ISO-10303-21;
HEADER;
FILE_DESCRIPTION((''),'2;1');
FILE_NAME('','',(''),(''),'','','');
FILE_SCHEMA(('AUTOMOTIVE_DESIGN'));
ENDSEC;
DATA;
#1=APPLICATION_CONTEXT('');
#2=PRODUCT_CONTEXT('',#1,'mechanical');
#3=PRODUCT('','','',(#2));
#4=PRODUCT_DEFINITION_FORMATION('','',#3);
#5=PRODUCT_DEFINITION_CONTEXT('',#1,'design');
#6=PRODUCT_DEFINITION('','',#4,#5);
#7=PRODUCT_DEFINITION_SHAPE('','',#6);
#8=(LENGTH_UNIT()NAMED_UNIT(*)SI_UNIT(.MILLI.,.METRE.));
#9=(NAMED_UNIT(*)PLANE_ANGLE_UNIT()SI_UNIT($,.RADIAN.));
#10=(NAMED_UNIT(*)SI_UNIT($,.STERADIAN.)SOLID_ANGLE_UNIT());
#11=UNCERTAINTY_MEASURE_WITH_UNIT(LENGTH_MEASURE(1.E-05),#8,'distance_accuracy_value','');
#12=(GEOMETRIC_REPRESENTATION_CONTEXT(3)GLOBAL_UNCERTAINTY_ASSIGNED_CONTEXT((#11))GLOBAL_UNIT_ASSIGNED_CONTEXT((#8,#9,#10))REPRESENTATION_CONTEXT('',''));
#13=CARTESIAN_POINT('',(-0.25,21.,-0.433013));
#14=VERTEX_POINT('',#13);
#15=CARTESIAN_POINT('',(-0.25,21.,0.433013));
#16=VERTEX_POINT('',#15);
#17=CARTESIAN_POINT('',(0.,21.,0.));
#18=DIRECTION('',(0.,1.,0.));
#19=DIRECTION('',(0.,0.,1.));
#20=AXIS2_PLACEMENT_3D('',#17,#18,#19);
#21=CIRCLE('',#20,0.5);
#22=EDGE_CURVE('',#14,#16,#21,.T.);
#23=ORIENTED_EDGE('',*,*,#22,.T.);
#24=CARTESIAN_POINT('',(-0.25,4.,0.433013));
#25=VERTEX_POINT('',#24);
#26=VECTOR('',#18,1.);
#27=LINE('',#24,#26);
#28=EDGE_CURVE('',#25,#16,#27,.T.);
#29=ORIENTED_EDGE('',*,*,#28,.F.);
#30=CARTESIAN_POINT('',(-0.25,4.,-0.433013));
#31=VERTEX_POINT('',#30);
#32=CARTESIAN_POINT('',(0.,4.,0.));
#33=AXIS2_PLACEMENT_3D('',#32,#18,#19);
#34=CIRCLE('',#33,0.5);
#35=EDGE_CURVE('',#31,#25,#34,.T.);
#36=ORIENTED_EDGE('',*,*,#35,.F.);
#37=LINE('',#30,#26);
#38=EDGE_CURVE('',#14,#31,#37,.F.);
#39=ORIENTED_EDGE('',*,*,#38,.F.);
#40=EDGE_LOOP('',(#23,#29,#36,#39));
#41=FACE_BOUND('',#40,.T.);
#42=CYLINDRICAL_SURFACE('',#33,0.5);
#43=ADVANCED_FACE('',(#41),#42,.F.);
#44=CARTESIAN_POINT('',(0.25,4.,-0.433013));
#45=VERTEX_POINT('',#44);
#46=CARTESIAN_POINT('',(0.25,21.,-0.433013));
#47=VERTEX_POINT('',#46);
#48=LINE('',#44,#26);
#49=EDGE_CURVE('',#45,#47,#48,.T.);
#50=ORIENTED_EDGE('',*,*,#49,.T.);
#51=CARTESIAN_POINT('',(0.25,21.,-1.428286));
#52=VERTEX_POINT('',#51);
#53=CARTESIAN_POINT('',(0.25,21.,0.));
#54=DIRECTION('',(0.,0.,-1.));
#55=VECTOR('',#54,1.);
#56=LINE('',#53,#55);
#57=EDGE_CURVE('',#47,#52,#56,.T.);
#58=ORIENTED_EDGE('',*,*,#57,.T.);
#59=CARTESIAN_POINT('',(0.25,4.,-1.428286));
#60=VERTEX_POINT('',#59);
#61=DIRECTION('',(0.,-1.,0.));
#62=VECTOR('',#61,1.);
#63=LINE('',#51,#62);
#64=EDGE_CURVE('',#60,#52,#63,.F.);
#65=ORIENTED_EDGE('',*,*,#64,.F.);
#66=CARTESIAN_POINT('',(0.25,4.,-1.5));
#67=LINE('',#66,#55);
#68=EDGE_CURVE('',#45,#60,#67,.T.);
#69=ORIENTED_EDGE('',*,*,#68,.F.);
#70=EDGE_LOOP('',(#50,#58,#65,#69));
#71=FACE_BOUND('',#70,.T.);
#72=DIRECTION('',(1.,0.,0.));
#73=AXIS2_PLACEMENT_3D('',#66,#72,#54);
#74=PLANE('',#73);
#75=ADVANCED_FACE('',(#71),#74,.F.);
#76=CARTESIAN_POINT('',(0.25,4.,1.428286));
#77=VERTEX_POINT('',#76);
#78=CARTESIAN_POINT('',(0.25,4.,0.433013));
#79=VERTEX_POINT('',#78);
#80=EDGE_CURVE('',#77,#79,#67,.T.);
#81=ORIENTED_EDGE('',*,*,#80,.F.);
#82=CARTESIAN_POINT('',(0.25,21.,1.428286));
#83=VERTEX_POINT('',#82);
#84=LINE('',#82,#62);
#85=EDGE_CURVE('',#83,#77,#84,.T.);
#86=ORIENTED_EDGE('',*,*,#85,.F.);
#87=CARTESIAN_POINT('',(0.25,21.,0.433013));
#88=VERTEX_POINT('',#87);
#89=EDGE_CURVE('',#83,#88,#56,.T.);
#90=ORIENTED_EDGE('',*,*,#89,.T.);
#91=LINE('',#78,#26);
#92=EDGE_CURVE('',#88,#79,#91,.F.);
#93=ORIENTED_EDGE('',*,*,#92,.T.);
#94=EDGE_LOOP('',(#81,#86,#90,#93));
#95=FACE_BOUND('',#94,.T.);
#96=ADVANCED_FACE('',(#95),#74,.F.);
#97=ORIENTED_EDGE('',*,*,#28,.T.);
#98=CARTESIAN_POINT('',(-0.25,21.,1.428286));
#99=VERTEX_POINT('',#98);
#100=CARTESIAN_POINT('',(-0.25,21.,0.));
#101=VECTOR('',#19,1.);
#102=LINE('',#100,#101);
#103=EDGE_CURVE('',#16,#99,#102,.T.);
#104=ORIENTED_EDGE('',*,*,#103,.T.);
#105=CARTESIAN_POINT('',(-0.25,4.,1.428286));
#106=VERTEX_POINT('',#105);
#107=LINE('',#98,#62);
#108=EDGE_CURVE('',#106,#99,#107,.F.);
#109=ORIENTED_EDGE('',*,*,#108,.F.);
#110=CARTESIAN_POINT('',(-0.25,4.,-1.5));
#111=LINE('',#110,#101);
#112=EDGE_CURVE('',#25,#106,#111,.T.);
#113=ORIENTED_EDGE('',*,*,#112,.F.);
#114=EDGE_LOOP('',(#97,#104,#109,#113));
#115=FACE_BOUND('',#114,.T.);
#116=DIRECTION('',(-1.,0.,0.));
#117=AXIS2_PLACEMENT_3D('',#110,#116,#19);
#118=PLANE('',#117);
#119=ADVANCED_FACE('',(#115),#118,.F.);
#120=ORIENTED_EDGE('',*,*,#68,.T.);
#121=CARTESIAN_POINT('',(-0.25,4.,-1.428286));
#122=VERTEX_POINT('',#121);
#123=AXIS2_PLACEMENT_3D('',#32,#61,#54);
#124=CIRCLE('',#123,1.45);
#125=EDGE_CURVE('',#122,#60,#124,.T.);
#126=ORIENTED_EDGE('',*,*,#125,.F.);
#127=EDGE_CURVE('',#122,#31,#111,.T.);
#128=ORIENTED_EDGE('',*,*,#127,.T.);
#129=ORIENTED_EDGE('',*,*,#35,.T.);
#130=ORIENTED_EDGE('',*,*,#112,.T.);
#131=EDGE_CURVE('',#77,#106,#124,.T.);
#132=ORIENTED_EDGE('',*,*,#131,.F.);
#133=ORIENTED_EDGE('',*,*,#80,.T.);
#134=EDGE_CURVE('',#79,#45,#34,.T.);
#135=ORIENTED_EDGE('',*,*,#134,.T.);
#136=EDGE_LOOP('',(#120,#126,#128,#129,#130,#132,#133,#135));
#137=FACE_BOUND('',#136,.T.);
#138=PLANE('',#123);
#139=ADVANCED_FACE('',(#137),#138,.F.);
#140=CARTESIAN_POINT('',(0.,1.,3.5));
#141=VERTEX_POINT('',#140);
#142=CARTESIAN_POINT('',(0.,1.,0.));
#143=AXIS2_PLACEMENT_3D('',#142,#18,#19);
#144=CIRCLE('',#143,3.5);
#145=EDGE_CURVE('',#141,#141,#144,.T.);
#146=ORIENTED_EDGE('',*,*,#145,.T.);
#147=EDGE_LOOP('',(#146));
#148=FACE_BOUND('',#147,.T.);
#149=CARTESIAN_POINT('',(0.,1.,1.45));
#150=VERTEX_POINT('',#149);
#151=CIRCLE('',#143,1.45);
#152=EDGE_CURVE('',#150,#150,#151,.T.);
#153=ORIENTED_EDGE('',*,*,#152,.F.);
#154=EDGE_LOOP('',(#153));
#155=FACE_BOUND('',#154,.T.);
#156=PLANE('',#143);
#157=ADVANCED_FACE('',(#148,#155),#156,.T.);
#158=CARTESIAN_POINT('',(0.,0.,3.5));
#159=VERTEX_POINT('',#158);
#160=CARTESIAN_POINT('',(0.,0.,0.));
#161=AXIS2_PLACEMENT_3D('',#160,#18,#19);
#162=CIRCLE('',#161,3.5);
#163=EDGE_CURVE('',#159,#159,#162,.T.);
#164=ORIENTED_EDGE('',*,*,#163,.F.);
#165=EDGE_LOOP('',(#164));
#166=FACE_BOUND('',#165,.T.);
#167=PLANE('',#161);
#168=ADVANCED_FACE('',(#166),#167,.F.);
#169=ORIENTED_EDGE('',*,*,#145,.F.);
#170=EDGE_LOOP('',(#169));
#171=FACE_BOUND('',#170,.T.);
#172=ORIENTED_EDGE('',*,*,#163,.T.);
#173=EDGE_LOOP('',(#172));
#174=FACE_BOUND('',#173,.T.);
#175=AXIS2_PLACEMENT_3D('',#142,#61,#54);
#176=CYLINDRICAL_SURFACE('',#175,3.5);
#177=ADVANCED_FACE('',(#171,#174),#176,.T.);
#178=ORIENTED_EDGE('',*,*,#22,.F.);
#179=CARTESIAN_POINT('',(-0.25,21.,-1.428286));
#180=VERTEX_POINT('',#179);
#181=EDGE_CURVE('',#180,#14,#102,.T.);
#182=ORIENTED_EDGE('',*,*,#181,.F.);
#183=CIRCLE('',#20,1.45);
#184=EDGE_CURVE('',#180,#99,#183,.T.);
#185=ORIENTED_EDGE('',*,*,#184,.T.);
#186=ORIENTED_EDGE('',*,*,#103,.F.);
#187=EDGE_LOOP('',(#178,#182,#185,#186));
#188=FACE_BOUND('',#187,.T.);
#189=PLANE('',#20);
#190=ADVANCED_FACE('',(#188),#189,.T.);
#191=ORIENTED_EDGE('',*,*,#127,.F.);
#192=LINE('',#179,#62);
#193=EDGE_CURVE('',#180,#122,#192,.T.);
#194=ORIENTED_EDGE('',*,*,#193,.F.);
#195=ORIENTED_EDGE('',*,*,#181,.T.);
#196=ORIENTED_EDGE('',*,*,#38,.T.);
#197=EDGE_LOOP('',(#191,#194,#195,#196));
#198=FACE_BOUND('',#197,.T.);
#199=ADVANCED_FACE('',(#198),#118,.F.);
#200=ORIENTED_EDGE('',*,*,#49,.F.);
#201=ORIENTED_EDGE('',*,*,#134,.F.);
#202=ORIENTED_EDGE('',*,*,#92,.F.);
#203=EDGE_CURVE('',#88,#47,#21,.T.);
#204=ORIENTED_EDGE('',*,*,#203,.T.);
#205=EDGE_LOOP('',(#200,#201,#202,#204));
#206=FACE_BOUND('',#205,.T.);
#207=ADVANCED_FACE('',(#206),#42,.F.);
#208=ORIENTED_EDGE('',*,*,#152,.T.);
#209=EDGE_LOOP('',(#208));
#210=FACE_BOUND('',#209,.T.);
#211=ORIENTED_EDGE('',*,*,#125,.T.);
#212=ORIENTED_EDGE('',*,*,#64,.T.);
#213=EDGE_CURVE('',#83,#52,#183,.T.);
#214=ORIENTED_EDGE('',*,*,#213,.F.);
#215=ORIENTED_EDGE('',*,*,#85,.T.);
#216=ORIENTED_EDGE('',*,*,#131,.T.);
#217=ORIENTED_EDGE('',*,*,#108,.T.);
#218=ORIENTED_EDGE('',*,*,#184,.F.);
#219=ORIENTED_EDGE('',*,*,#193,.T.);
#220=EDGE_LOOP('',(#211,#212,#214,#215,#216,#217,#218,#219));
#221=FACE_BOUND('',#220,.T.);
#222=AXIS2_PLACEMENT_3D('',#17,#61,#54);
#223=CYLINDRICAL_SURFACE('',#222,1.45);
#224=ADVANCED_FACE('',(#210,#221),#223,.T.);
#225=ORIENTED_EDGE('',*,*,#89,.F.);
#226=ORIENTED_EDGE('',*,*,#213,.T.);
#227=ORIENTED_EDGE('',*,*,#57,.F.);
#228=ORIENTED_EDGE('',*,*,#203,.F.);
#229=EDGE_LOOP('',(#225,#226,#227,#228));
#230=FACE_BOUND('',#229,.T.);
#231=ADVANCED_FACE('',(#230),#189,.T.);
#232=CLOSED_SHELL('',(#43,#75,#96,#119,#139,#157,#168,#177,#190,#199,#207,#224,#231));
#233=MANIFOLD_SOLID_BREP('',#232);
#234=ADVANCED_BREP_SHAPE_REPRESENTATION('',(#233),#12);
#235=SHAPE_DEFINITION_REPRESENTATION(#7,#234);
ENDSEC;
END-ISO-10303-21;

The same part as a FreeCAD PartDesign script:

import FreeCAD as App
import Part
import Sketcher


def add_polygon(sketch, points):
    """Adds a closed chain of lines whose ends are joined by coincident constraints."""
    first, n = sketch.GeometryCount, len(points)
    for a, b in zip(points, points[1:] + points[:1]):
        sketch.addGeometry(Part.LineSegment(App.Vector(*a, 0), App.Vector(*b, 0)), False)
    for i in range(n):
        sketch.addConstraint(Sketcher.Constraint("Coincident", first + i, 2, first + (i + 1) % n, 1))

doc = App.newDocument("Part")
body = doc.addObject("PartDesign::Body", "Body")

# Sketch on XZ plane
sketch1 = doc.addObject("Sketcher::SketchObject", "Sketch")
body.addObject(sketch1)
sketch1.AttachmentSupport = (doc.XZ_Plane, [""])
sketch1.MapMode = "FlatFace"
sketch1.addGeometry(Part.Circle(App.Vector(0, 0, 0), App.Vector(0, 0, 1), 3.5), False)
sketch1.addConstraint([
    Sketcher.Constraint("Coincident", 0, 3, -1, 1),
    Sketcher.Constraint("Diameter", 0, 7.0),
])
pad1 = doc.addObject("PartDesign::Pad", "Pad")
body.addObject(pad1)
pad1.Profile = sketch1
pad1.Length = 1
pad1.Reversed = True

# Sketch on XZ plane
sketch2 = doc.addObject("Sketcher::SketchObject", "Sketch001")
body.addObject(sketch2)
sketch2.AttachmentSupport = (doc.XZ_Plane, [""])
sketch2.MapMode = "FlatFace"
sketch2.AttachmentOffset = App.Placement(App.Vector(0, 0, -1), App.Rotation())
sketch2.addGeometry(Part.Circle(App.Vector(0, 0, 0), App.Vector(0, 0, 1), 1.4), False)
sketch2.addConstraint([
    Sketcher.Constraint("Coincident", 0, 3, -1, 1),
    Sketcher.Constraint("Diameter", 0, 2.9),
])
pad2 = doc.addObject("PartDesign::Pad", "Pad001")
body.addObject(pad2)
pad2.Profile = sketch2
pad2.Length = 20
pad2.Reversed = True

# Sketch on XZ plane
sketch3 = doc.addObject("Sketcher::SketchObject", "Sketch002")
body.addObject(sketch3)
sketch3.AttachmentSupport = (doc.XZ_Plane, [""])
sketch3.MapMode = "FlatFace"
sketch3.AttachmentOffset = App.Placement(App.Vector(0, 0, -21), App.Rotation())
add_polygon(sketch3, [(-0.2, -1.5), (-0.2, 1.5), (0.2, 1.5), (0.2, -1.5)])  # lines 0-3
sketch3.addConstraint([
    Sketcher.Constraint("Vertical", 0),
    Sketcher.Constraint("Horizontal", 1),
    Sketcher.Constraint("Vertical", 2),
    Sketcher.Constraint("Horizontal", 3),
    Sketcher.Constraint("Symmetric", 0, 2, 2, 2, -1, 1),
    Sketcher.Constraint("DistanceY", 0, 1, 0, 2, 3.0),
    Sketcher.Constraint("DistanceX", 1, 1, 1, 2, 0.5),
])
pocket1 = doc.addObject("PartDesign::Pocket", "Pocket")
body.addObject(pocket1)
pocket1.Profile = sketch3
pocket1.Length = 17
pocket1.Reversed = True

# Sketch on XZ plane
sketch4 = doc.addObject("Sketcher::SketchObject", "Sketch003")
body.addObject(sketch4)
sketch4.AttachmentSupport = (doc.XZ_Plane, [""])
sketch4.MapMode = "FlatFace"
sketch4.AttachmentOffset = App.Placement(App.Vector(0, 0, -21), App.Rotation())
sketch4.addGeometry(Part.Circle(App.Vector(0, 0, 0), App.Vector(0, 0, 1), 0.5), False)
sketch4.addConstraint([
    Sketcher.Constraint("Coincident", 0, 3, -1, 1),
    Sketcher.Constraint("Diameter", 0, 1.0),
])
pocket2 = doc.addObject("PartDesign::Pocket", "Pocket001")
body.addObject(pocket2)
pocket2.Profile = sketch4
pocket2.Length = 17
pocket2.Reversed = True

doc.recompute()
